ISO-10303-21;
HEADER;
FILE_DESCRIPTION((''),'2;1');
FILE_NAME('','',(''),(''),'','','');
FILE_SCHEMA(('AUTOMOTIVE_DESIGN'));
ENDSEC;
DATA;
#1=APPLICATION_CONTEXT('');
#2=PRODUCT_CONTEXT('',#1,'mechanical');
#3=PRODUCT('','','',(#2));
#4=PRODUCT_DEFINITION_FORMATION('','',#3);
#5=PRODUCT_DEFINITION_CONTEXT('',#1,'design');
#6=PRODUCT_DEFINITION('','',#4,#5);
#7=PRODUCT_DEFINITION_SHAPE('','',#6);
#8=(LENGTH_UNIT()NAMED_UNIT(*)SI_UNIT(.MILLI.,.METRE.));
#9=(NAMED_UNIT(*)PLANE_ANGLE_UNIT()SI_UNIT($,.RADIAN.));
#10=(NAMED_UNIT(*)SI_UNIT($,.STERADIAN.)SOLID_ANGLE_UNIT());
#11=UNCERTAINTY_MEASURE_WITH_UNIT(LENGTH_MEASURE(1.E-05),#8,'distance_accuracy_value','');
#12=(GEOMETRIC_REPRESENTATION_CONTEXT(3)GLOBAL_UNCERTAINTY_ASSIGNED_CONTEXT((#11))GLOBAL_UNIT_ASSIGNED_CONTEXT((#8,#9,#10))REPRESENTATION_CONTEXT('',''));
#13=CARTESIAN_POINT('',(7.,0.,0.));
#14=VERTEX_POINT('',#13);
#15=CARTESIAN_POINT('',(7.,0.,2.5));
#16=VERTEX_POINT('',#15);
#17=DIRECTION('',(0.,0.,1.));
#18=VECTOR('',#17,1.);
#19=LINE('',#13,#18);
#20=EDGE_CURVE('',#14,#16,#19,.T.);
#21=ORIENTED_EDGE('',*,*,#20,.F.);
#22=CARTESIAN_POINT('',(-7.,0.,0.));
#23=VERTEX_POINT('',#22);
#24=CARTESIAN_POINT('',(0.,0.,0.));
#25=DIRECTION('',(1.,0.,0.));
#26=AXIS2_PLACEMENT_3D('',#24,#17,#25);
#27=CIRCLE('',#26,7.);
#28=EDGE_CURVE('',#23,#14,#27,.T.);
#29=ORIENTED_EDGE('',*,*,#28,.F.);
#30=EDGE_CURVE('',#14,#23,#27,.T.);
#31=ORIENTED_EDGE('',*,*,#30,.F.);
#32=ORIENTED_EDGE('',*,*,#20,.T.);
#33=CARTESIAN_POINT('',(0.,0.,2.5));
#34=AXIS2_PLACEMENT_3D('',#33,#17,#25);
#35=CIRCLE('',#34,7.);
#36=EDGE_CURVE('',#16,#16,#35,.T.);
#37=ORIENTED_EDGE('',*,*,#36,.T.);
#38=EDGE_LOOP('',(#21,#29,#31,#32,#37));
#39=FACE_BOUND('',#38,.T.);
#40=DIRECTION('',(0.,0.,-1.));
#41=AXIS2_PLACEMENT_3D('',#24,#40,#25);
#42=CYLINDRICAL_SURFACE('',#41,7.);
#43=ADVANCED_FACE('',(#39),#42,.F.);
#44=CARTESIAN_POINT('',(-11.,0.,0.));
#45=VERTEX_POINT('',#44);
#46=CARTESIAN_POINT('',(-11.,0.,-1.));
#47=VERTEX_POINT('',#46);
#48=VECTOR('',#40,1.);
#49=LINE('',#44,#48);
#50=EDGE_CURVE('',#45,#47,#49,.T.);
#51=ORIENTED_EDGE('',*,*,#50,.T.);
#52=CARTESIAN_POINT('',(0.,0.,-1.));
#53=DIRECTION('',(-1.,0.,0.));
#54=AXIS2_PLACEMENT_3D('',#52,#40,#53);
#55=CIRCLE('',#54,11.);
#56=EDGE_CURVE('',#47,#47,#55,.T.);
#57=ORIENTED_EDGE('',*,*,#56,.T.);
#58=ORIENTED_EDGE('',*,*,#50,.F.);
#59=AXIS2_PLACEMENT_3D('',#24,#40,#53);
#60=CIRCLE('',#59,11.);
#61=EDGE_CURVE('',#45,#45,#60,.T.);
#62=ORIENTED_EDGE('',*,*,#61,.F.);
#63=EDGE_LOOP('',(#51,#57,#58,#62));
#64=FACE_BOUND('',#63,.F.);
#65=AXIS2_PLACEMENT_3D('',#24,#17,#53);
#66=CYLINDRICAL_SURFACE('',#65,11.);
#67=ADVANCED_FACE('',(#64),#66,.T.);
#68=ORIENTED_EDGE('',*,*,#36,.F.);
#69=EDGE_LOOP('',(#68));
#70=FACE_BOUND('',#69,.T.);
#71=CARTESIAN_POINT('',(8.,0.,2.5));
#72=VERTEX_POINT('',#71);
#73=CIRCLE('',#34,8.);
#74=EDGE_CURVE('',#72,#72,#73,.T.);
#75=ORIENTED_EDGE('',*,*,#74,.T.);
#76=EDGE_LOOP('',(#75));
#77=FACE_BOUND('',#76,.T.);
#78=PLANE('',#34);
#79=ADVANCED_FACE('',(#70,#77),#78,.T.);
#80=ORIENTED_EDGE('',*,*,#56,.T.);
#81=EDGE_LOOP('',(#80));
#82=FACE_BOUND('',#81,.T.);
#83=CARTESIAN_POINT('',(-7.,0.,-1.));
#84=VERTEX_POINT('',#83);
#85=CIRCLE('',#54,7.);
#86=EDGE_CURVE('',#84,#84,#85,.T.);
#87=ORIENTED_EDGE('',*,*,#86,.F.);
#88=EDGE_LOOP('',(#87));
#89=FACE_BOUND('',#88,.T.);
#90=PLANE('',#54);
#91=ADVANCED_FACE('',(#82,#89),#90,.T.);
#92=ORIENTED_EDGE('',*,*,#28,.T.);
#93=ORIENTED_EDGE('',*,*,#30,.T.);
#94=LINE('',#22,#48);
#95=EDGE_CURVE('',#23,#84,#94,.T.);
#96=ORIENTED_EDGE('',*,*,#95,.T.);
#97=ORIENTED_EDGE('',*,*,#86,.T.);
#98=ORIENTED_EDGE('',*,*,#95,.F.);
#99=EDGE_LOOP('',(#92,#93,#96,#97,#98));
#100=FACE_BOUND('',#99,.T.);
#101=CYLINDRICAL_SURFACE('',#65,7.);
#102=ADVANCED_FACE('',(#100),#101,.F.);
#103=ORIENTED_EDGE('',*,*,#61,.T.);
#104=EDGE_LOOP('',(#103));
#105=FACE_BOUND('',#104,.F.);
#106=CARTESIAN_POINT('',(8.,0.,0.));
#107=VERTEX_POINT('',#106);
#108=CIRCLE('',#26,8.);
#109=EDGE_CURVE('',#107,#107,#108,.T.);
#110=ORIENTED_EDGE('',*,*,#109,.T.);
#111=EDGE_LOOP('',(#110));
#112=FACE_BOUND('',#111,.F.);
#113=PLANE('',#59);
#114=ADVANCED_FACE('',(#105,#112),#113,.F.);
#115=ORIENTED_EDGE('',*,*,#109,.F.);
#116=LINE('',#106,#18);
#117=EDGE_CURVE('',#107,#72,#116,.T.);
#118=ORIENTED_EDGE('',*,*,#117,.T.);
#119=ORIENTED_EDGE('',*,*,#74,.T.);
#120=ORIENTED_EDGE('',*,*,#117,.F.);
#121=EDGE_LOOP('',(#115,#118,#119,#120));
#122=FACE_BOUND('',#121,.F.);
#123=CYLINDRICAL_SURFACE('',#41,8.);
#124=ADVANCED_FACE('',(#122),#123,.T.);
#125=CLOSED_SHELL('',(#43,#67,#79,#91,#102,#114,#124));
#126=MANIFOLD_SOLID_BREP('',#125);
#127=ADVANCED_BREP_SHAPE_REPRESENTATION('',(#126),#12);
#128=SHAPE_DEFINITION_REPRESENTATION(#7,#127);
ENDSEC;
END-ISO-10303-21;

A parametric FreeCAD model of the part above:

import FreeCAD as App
import Part
import Sketcher
Q = App.Units.Quantity

doc = App.newDocument("Part")
body = doc.addObject("PartDesign::Body", "Body")

sketch1 = body.newObject("Sketcher::SketchObject", "Sketch")
sketch1.AttachmentSupport = (doc.getObject("XY_Plane"), [""])
sketch1.MapMode = "FlatFace"
sketch1.addGeometry([
    Part.Circle(App.Vector(0, 0, 0), App.Vector(0, 0, 1), 8),
    Part.Circle(App.Vector(0, 0, 0), App.Vector(0, 0, 1), 7),
], False)
sketch1.addConstraint([
    Sketcher.Constraint("Coincident", 0, 3, -1, 1),
    Sketcher.Constraint("Coincident", 1, 3, -1, 1),
    Sketcher.Constraint("Diameter", 0, Q("16 mm")),
    Sketcher.Constraint("Diameter", 1, Q("14 mm")),
])
pad1 = body.newObject("PartDesign::Pad", "Pad")
pad1.Profile = sketch1
pad1.Length = 2.5

sketch2 = body.newObject("Sketcher::SketchObject", "Sketch001")
sketch2.AttachmentSupport = (doc.getObject("XY_Plane"), [""])
sketch2.MapMode = "FlatFace"
sketch2.addGeometry([
    Part.Circle(App.Vector(0, 0, 0), App.Vector(0, 0, 1), 11),
    Part.Circle(App.Vector(0, 0, 0), App.Vector(0, 0, 1), 7),
], False)
sketch2.addConstraint([
    Sketcher.Constraint("Coincident", 0, 3, -1, 1),
    Sketcher.Constraint("Coincident", 1, 3, -1, 1),
    Sketcher.Constraint("Diameter", 0, Q("22 mm")),
    Sketcher.Constraint("Diameter", 1, Q("14 mm")),
])
pad2 = body.newObject("PartDesign::Pad", "Pad001")
pad2.Profile = sketch2
pad2.Length = 1
pad2.Reversed = True

doc.recompute()
